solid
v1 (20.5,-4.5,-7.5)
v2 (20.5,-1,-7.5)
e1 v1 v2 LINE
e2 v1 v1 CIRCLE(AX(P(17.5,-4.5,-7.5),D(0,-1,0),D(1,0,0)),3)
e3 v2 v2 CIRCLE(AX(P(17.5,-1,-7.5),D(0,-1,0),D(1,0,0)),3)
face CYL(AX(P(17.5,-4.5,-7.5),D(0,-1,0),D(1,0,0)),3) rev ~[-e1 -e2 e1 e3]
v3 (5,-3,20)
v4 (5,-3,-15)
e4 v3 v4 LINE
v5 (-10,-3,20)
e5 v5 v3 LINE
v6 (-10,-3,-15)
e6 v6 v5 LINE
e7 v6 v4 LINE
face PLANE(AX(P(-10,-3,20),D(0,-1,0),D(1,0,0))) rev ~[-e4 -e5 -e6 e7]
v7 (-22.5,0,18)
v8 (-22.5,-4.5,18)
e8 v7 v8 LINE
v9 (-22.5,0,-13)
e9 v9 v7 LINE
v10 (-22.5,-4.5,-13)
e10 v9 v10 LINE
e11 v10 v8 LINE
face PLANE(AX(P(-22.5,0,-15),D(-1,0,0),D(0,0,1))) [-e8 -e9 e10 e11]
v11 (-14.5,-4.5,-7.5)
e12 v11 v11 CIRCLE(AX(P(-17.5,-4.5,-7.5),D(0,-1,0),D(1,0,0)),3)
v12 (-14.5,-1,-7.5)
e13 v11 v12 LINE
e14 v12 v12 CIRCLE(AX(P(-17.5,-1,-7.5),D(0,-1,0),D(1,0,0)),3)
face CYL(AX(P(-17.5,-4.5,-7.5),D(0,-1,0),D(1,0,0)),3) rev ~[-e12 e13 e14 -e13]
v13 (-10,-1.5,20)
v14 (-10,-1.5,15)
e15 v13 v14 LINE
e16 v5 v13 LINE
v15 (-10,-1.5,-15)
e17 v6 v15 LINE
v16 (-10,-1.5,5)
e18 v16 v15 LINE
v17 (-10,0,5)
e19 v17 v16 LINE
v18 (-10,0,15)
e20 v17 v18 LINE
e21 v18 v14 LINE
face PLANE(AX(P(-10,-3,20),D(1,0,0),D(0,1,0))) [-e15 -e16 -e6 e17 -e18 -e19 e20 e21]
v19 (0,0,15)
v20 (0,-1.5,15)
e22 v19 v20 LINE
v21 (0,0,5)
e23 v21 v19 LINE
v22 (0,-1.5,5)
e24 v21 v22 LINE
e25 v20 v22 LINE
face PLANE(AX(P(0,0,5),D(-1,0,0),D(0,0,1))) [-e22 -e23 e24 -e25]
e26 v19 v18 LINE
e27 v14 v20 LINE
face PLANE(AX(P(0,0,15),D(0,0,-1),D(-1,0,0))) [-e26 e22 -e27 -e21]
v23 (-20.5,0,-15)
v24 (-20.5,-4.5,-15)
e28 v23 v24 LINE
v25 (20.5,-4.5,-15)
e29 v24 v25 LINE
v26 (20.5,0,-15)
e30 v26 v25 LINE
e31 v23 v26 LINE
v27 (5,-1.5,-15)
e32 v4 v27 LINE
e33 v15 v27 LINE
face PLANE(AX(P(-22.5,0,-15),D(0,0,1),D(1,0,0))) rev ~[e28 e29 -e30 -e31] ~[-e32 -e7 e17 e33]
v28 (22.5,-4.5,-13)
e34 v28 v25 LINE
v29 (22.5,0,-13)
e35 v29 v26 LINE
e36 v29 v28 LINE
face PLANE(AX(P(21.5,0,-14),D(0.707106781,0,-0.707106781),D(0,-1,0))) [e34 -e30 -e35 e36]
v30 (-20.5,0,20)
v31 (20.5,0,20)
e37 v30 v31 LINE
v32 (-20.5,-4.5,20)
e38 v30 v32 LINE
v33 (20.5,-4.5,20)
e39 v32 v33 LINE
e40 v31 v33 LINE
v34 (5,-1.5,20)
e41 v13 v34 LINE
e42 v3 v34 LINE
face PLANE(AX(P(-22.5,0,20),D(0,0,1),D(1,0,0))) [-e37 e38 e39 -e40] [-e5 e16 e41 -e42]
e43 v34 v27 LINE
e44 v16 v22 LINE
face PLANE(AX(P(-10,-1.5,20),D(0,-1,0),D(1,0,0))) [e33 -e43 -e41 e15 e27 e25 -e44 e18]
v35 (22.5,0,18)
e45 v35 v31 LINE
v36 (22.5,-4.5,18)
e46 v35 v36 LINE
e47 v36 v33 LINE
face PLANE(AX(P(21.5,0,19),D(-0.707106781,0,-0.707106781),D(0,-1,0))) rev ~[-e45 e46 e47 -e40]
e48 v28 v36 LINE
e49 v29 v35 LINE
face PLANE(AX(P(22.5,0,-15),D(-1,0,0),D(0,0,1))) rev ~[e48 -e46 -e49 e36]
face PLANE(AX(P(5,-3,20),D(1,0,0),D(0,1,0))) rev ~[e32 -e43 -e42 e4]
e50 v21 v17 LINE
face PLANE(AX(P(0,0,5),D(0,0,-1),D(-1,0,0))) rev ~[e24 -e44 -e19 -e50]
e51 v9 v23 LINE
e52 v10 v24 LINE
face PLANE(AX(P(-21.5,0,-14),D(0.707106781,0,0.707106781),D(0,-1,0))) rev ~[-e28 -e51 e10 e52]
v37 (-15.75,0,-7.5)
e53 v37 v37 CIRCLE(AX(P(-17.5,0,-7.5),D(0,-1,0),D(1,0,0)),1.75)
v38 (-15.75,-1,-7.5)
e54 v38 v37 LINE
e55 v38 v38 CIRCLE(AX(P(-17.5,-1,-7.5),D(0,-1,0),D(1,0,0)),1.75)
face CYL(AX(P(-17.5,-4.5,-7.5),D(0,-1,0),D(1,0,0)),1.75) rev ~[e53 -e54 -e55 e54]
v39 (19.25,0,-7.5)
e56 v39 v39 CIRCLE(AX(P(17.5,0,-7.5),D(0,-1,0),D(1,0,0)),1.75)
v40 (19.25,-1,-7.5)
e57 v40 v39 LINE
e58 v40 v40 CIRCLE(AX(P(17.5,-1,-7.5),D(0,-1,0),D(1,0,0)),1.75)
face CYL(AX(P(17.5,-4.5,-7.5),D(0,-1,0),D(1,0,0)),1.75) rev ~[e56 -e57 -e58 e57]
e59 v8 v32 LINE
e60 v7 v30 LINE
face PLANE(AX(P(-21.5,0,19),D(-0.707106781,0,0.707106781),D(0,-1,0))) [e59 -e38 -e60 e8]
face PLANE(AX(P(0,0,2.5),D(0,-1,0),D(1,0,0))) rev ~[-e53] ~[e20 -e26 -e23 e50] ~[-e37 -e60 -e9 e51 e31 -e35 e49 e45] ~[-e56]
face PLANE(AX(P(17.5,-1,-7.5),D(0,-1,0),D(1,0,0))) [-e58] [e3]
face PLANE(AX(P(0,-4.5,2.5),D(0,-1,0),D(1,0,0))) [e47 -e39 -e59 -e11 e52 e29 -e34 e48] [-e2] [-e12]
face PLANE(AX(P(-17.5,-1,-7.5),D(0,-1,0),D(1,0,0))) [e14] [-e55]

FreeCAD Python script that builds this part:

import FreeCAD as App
import Part
import Sketcher

V = App.Vector
Q = App.Units.Quantity


def edges_at(feature, points):
    """Names of the edges that pass closest to the given points."""
    edges = feature.Shape.Edges
    near = lambda p: min(range(len(edges)), key=lambda i: edges[i].distToShape(Part.Vertex(*p))[0])
    return sorted({f"Edge{near(p) + 1}" for p in points})


def add_polygon(sketch, points):
    """Adds a closed chain of lines whose ends are joined by coincident constraints."""
    first, n = sketch.GeometryCount, len(points)
    for a, b in zip(points, points[1:] + points[:1]):
        sketch.addGeometry(Part.LineSegment(App.Vector(*a, 0), App.Vector(*b, 0)), False)
    for i in range(n):
        sketch.addConstraint(Sketcher.Constraint("Coincident", first + i, 2, first + (i + 1) % n, 1))

doc = App.newDocument("Part")
body = doc.addObject("PartDesign::Body", "Body")

# Sketch on XZ plane
sketch1 = doc.addObject("Sketcher::SketchObject", "Sketch")
body.addObject(sketch1)
sketch1.AttachmentSupport = (doc.XZ_Plane, [""])
sketch1.MapMode = "FlatFace"
add_polygon(sketch1, [(-22, 20), (-22, -15), (22, -15), (22, 20)])  # lines 0-3
sketch1.addConstraint([
    Sketcher.Constraint("Vertical", 0),
    Sketcher.Constraint("Horizontal", 1),
    Sketcher.Constraint("Vertical", 2),
    Sketcher.Constraint("Horizontal", 3),
    Sketcher.Constraint("DistanceX", 1, 1, 1, 2, Q("45 mm")),
    Sketcher.Constraint("DistanceY", 0, 2, 0, 1, Q("35 mm")),
    Sketcher.Constraint("DistanceY", 0, 2, -1, 1, Q("15 mm")),
    Sketcher.Constraint("DistanceX", 0, 2, -1, 1, Q("22.5 mm")),
])
pad1 = doc.addObject("PartDesign::Pad", "Pad")
body.addObject(pad1)
pad1.Profile = sketch1
pad1.Length = 4.5

# Sketch on XY plane
sketch2 = doc.addObject("Sketcher::SketchObject", "Sketch001")
body.addObject(sketch2)
sketch2.AttachmentSupport = (doc.XY_Plane, [""])
sketch2.MapMode = "FlatFace"
sketch2.AttachmentOffset = App.Placement(V(0, 0, 20), App.Rotation())
add_polygon(sketch2, [(-10, -1.5), (-10, -3), (5, -3), (5, -1.5)])  # lines 0-3
sketch2.addConstraint([
    Sketcher.Constraint("Vertical", 0),
    Sketcher.Constraint("Horizontal", 1),
    Sketcher.Constraint("Vertical", 2),
    Sketcher.Constraint("Horizontal", 3),
    Sketcher.Constraint("DistanceX", 1, 1, 1, 2, Q("15 mm")),
    Sketcher.Constraint("DistanceY", 0, 2, 0, 1, Q("1.5 mm")),
    Sketcher.Constraint("DistanceX", 0, 2, -1, 1, Q("10 mm")),
    Sketcher.Constraint("DistanceY", 0, 2, -1, 1, Q("3 mm")),
])
pocket1 = doc.addObject("PartDesign::Pocket", "Pocket")
body.addObject(pocket1)
pocket1.Profile = sketch2
pocket1.Type = "ThroughAll"

# Sketch on XZ plane
sketch3 = doc.addObject("Sketcher::SketchObject", "Sketch002")
body.addObject(sketch3)
sketch3.AttachmentSupport = (doc.XZ_Plane, [""])
sketch3.MapMode = "FlatFace"
sketch3.AttachmentOffset = App.Placement(V(0, 0, 4.5), App.Rotation())
sketch3.addGeometry([
    Part.Circle(V(17.5, -7.5, 0), V(0, 0, 1), 3),
    Part.Circle(V(-17.5, -7.5, 0), V(0, 0, 1), 3),
], False)
sketch3.addConstraint([
    Sketcher.Constraint("Equal", 0, 1),
    Sketcher.Constraint("Symmetric", 0, 3, 1, 3, -2),
    Sketcher.Constraint("Diameter", 0, Q("6 mm")),
    Sketcher.Constraint("DistanceX", 1, 3, 0, 3, Q("35 mm")),
    Sketcher.Constraint("DistanceY", 0, 3, -1, 1, Q("7.5 mm")),
])
pocket2 = doc.addObject("PartDesign::Pocket", "Pocket001")
body.addObject(pocket2)
pocket2.Profile = sketch3
pocket2.Length = 3.5

# Sketch on XZ plane
sketch4 = doc.addObject("Sketcher::SketchObject", "Sketch003")
body.addObject(sketch4)
sketch4.AttachmentSupport = (doc.XZ_Plane, [""])
sketch4.MapMode = "FlatFace"
sketch4.AttachmentOffset = App.Placement(V(0, 0, 4.5), App.Rotation())
sketch4.addGeometry([
    Part.Circle(V(17.5, -7.5, 0), V(0, 0, 1), 1.8),
    Part.Circle(V(-17.5, -7.5, 0), V(0, 0, 1), 1.8),
], False)
sketch4.addConstraint([
    Sketcher.Constraint("Equal", 0, 1),
    Sketcher.Constraint("Symmetric", 0, 3, 1, 3, -2),
    Sketcher.Constraint("Diameter", 0, Q("3.5 mm")),
    Sketcher.Constraint("DistanceX", 1, 3, 0, 3, Q("35 mm")),
    Sketcher.Constraint("DistanceY", 0, 3, -1, 1, Q("7.5 mm")),
])
pocket3 = doc.addObject("PartDesign::Pocket", "Pocket002")
body.addObject(pocket3)
pocket3.Profile = sketch4
pocket3.Type = "ThroughAll"

# Sketch on XZ plane
sketch5 = doc.addObject("Sketcher::SketchObject", "Sketch004")
body.addObject(sketch5)
sketch5.AttachmentSupport = (doc.XZ_Plane, [""])
sketch5.MapMode = "FlatFace"
add_polygon(sketch5, [(0, 15), (0, 5), (-10, 5), (-10, 15)])  # lines 0-3
sketch5.addConstraint([
    Sketcher.Constraint("Vertical", 0),
    Sketcher.Constraint("Horizontal", 1),
    Sketcher.Constraint("Vertical", 2),
    Sketcher.Constraint("Horizontal", 3),
    Sketcher.Constraint("PointOnObject", 0, 2, -2),
    Sketcher.Constraint("Equal", 3, 0),
    Sketcher.Constraint("DistanceX", 1, 2, 1, 1, Q("10 mm")),
    Sketcher.Constraint("DistanceY", -1, 1, 0, 2, Q("5 mm")),
])
pocket4 = doc.addObject("PartDesign::Pocket", "Pocket003")
body.addObject(pocket4)
pocket4.Profile = sketch5
pocket4.Length = 3
pocket4.Reversed = True
doc.recompute()

chamfer = doc.addObject("PartDesign::Chamfer", "Chamfer")
body.addObject(chamfer)
chamfer.Base = (pocket4, edges_at(pocket4, [
    (-22.5, -2.25, 20),
    (22.5, -2.25, 20),
    (22.5, -2.25, -15),
    (-22.5, -2.25, -15),
]))
chamfer.Size = 2

doc.recompute()
